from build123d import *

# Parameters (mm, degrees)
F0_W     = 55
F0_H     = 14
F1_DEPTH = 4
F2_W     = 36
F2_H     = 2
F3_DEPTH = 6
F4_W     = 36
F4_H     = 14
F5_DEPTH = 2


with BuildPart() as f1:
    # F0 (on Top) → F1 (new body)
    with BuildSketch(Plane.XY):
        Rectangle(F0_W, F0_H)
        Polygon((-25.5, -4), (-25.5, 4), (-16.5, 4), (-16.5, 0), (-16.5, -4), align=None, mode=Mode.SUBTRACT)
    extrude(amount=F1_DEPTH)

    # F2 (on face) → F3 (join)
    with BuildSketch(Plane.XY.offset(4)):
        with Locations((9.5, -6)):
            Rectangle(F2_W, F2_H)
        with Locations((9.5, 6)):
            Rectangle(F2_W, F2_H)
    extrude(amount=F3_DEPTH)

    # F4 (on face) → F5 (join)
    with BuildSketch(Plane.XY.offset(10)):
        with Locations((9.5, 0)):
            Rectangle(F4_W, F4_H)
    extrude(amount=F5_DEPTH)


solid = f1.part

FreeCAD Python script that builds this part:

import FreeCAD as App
import Part
import Sketcher

V = App.Vector

doc = App.newDocument("Part")
body = doc.addObject("PartDesign::Body", "Body")

sketch1 = body.newObject("Sketcher::SketchObject", "Sketch")
sketch1.AttachmentSupport = (doc.getObject("XY_Plane"), [""])
sketch1.MapMode = "FlatFace"
sketch1.addGeometry(Part.LineSegment(V(-28, 7, 0), V(-28, -7, 0)), False)
sketch1.addGeometry(Part.LineSegment(V(-28, -7, 0), V(28, -7, 0)), False)
sketch1.addGeometry(Part.LineSegment(V(28, -7, 0), V(28, 7, 0)), False)
sketch1.addGeometry(Part.LineSegment(V(28, 7, 0), V(-28, 7, 0)), False)
sketch1.addGeometry(Part.LineSegment(V(-16, -4, 0), V(-26, -4, 0)), False)
sketch1.addGeometry(Part.LineSegment(V(-26, -4, 0), V(-26, 4, 0)), False)
sketch1.addGeometry(Part.LineSegment(V(-26, 4, 0), V(-16, 4, 0)), False)
sketch1.addGeometry(Part.LineSegment(V(-16, 4, 0), V(-16, -4, 0)), False)
sketch1.addConstraint(Sketcher.Constraint("Coincident", 0, 2, 1, 1))
sketch1.addConstraint(Sketcher.Constraint("Coincident", 1, 2, 2, 1))
sketch1.addConstraint(Sketcher.Constraint("Coincident", 2, 2, 3, 1))
sketch1.addConstraint(Sketcher.Constraint("Coincident", 3, 2, 0, 1))
sketch1.addConstraint(Sketcher.Constraint("Coincident", 4, 2, 5, 1))
sketch1.addConstraint(Sketcher.Constraint("Coincident", 5, 2, 6, 1))
sketch1.addConstraint(Sketcher.Constraint("Coincident", 6, 2, 7, 1))
sketch1.addConstraint(Sketcher.Constraint("Coincident", 7, 2, 4, 1))
sketch1.addConstraint(Sketcher.Constraint("Vertical", 0))
sketch1.addConstraint(Sketcher.Constraint("Horizontal", 1))
sketch1.addConstraint(Sketcher.Constraint("Vertical", 2))
sketch1.addConstraint(Sketcher.Constraint("Horizontal", 3))
sketch1.addConstraint(Sketcher.Constraint("Horizontal", 4))
sketch1.addConstraint(Sketcher.Constraint("Vertical", 5))
sketch1.addConstraint(Sketcher.Constraint("Horizontal", 6))
sketch1.addConstraint(Sketcher.Constraint("Vertical", 7))
sketch1.addConstraint(Sketcher.Constraint("Symmetric", 0, 2, 2, 2, -1, 1))
sketch1.addConstraint(Sketcher.Constraint("DistanceX", 1, 1, 1, 2, 55.0))
sketch1.addConstraint(Sketcher.Constraint("DistanceX", 4, 2, 4, 1, 9.0))
sketch1.addConstraint(Sketcher.Constraint("DistanceY", 0, 2, 0, 1, 14.0))
sketch1.addConstraint(Sketcher.Constraint("DistanceY", 5, 1, 5, 2, 8.0))
sketch1.addConstraint(Sketcher.Constraint("DistanceY", 4, 2, -1, 1, 4.0))
sketch1.addConstraint(Sketcher.Constraint("DistanceX", 0, 2, 4, 2, 2.0))
pad1 = body.newObject("PartDesign::Pad", "Pad")
pad1.Profile = sketch1
pad1.Length = 4

sketch2 = body.newObject("Sketcher::SketchObject", "Sketch001")
sketch2.AttachmentSupport = (doc.getObject("XY_Plane"), [""])
sketch2.MapMode = "FlatFace"
sketch2.AttachmentOffset = App.Placement(V(0, 0, 4), App.Rotation())
sketch2.addGeometry(Part.LineSegment(V(-8.5, -5, 0), V(-8.5, -7, 0)), False)
sketch2.addGeometry(Part.LineSegment(V(-8.5, -7, 0), V(27.5, -7, 0)), False)
sketch2.addGeometry(Part.LineSegment(V(27.5, -7, 0), V(27.5, -5, 0)), False)
sketch2.addGeometry(Part.LineSegment(V(27.5, -5, 0), V(-8.5, -5, 0)), False)
sketch2.addGeometry(Part.LineSegment(V(-8.5, 7, 0), V(-8.5, 5, 0)), False)
sketch2.addGeometry(Part.LineSegment(V(-8.5, 5, 0), V(27.5, 5, 0)), False)
sketch2.addGeometry(Part.LineSegment(V(27.5, 5, 0), V(27.5, 7, 0)), False)
sketch2.addGeometry(Part.LineSegment(V(27.5, 7, 0), V(-8.5, 7, 0)), False)
sketch2.addConstraint(Sketcher.Constraint("Coincident", 0, 2, 1, 1))
sketch2.addConstraint(Sketcher.Constraint("Coincident", 1, 2, 2, 1))
sketch2.addConstraint(Sketcher.Constraint("Coincident", 2, 2, 3, 1))
sketch2.addConstraint(Sketcher.Constraint("Coincident", 3, 2, 0, 1))
sketch2.addConstraint(Sketcher.Constraint("Coincident", 4, 2, 5, 1))
sketch2.addConstraint(Sketcher.Constraint("Coincident", 5, 2, 6, 1))
sketch2.addConstraint(Sketcher.Constraint("Coincident", 6, 2, 7, 1))
sketch2.addConstraint(Sketcher.Constraint("Coincident", 7, 2, 4, 1))
sketch2.addConstraint(Sketcher.Constraint("Vertical", 0))
sketch2.addConstraint(Sketcher.Constraint("Horizontal", 1))
sketch2.addConstraint(Sketcher.Constraint("Vertical", 2))
sketch2.addConstraint(Sketcher.Constraint("Horizontal", 3))
sketch2.addConstraint(Sketcher.Constraint("Vertical", 4))
sketch2.addConstraint(Sketcher.Constraint("Horizontal", 5))
sketch2.addConstraint(Sketcher.Constraint("Vertical", 6))
sketch2.addConstraint(Sketcher.Constraint("Horizontal", 7))
sketch2.addConstraint(Sketcher.Constraint("Symmetric", 3, 2, 4, 2, -1))
sketch2.addConstraint(Sketcher.Constraint("Symmetric", 1, 2, 6, 2, -1))
sketch2.addConstraint(Sketcher.Constraint("DistanceX", 1, 1, 1, 2, 36.0))
sketch2.addConstraint(Sketcher.Constraint("DistanceY", 0, 2, 0, 1, 2.0))
sketch2.addConstraint(Sketcher.Constraint("DistanceY", 0, 2, -1, 1, 7.0))
sketch2.addConstraint(Sketcher.Constraint("DistanceX", 0, 2, -1, 1, 8.5))
pad2 = body.newObject("PartDesign::Pad", "Pad001")
pad2.Profile = sketch2
pad2.Length = 6

sketch3 = body.newObject("Sketcher::SketchObject", "Sketch002")
sketch3.AttachmentSupport = (doc.getObject("XY_Plane"), [""])
sketch3.MapMode = "FlatFace"
sketch3.AttachmentOffset = App.Placement(V(0, 0, 10), App.Rotation())
sketch3.addGeometry(Part.LineSegment(V(-8, 7, 0), V(-8, -7, 0)), False)
sketch3.addGeometry(Part.LineSegment(V(-8, -7, 0), V(28, -7, 0)), False)
sketch3.addGeometry(Part.LineSegment(V(28, -7, 0), V(28, 7, 0)), False)
sketch3.addGeometry(Part.LineSegment(V(28, 7, 0), V(-8, 7, 0)), False)
sketch3.addConstraint(Sketcher.Constraint("Coincident", 0, 2, 1, 1))
sketch3.addConstraint(Sketcher.Constraint("Coincident", 1, 2, 2, 1))
sketch3.addConstraint(Sketcher.Constraint("Coincident", 2, 2, 3, 1))
sketch3.addConstraint(Sketcher.Constraint("Coincident", 3, 2, 0, 1))
sketch3.addConstraint(Sketcher.Constraint("Vertical", 0))
sketch3.addConstraint(Sketcher.Constraint("Horizontal", 1))
sketch3.addConstraint(Sketcher.Constraint("Vertical", 2))
sketch3.addConstraint(Sketcher.Constraint("Horizontal", 3))
sketch3.addConstraint(Sketcher.Constraint("DistanceX", 1, 1, 1, 2, 36.0))
sketch3.addConstraint(Sketcher.Constraint("DistanceY", 0, 2, 0, 1, 14.0))
sketch3.addConstraint(Sketcher.Constraint("DistanceY", 0, 2, -1, 1, 7.0))
sketch3.addConstraint(Sketcher.Constraint("DistanceX", 0, 2, -1, 1, 8.5))
pad3 = body.newObject("PartDesign::Pad", "Pad002")
pad3.Profile = sketch3
pad3.Length = 2

doc.recompute()
